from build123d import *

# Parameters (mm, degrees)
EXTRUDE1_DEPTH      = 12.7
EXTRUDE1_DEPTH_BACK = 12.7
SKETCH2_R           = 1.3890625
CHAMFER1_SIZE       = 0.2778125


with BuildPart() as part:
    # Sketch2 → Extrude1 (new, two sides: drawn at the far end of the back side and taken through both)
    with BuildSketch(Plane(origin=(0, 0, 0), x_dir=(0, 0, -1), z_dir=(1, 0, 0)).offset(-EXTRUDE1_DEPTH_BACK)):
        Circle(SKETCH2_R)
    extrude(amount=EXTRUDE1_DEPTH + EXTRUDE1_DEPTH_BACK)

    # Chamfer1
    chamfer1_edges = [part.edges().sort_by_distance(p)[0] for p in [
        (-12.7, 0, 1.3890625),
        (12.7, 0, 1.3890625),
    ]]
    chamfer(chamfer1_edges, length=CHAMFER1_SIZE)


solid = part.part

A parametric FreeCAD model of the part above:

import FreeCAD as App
import Part
import Sketcher
from FreeCAD import Vector
Q = App.Units.Quantity


def edges_at(feature, points):
    """Names of the edges that pass closest to the given points."""
    edges = feature.Shape.Edges
    near = lambda p: min(range(len(edges)), key=lambda i: edges[i].distToShape(Part.Vertex(*p))[0])
    return sorted({f"Edge{near(p) + 1}" for p in points})

doc = App.newDocument("Part")
body = doc.addObject("PartDesign::Body", "Body")

sketch1 = body.newObject("Sketcher::SketchObject", "Sketch")
sketch1.AttachmentSupport = (doc.getObject("YZ_Plane"), [""])
sketch1.MapMode = "FlatFace"
sketch1.addGeometry(Part.Circle(Vector(0, 0, 0), Vector(0, 0, 1), 1.389063), False)
sketch1.addConstraint([
    Sketcher.Constraint("Coincident", 0, 3, -1, 1),
    Sketcher.Constraint("Diameter", 0, Q("0.109375 in")),
])
pad1 = body.newObject("PartDesign::Pad", "Pad")
pad1.Profile = sketch1
pad1.Type = "TwoLengths"
pad1.Length = Q("0.5 in")
pad1.Length2 = Q("0.5 in")
doc.recompute()

chamfer = body.newObject("PartDesign::Chamfer", "Chamfer")
chamfer.Base = (pad1, edges_at(pad1, [(-12.7, 0, 1.389), (12.7, 0, 1.389)]))
chamfer.Size = 0.277813

doc.recompute()
